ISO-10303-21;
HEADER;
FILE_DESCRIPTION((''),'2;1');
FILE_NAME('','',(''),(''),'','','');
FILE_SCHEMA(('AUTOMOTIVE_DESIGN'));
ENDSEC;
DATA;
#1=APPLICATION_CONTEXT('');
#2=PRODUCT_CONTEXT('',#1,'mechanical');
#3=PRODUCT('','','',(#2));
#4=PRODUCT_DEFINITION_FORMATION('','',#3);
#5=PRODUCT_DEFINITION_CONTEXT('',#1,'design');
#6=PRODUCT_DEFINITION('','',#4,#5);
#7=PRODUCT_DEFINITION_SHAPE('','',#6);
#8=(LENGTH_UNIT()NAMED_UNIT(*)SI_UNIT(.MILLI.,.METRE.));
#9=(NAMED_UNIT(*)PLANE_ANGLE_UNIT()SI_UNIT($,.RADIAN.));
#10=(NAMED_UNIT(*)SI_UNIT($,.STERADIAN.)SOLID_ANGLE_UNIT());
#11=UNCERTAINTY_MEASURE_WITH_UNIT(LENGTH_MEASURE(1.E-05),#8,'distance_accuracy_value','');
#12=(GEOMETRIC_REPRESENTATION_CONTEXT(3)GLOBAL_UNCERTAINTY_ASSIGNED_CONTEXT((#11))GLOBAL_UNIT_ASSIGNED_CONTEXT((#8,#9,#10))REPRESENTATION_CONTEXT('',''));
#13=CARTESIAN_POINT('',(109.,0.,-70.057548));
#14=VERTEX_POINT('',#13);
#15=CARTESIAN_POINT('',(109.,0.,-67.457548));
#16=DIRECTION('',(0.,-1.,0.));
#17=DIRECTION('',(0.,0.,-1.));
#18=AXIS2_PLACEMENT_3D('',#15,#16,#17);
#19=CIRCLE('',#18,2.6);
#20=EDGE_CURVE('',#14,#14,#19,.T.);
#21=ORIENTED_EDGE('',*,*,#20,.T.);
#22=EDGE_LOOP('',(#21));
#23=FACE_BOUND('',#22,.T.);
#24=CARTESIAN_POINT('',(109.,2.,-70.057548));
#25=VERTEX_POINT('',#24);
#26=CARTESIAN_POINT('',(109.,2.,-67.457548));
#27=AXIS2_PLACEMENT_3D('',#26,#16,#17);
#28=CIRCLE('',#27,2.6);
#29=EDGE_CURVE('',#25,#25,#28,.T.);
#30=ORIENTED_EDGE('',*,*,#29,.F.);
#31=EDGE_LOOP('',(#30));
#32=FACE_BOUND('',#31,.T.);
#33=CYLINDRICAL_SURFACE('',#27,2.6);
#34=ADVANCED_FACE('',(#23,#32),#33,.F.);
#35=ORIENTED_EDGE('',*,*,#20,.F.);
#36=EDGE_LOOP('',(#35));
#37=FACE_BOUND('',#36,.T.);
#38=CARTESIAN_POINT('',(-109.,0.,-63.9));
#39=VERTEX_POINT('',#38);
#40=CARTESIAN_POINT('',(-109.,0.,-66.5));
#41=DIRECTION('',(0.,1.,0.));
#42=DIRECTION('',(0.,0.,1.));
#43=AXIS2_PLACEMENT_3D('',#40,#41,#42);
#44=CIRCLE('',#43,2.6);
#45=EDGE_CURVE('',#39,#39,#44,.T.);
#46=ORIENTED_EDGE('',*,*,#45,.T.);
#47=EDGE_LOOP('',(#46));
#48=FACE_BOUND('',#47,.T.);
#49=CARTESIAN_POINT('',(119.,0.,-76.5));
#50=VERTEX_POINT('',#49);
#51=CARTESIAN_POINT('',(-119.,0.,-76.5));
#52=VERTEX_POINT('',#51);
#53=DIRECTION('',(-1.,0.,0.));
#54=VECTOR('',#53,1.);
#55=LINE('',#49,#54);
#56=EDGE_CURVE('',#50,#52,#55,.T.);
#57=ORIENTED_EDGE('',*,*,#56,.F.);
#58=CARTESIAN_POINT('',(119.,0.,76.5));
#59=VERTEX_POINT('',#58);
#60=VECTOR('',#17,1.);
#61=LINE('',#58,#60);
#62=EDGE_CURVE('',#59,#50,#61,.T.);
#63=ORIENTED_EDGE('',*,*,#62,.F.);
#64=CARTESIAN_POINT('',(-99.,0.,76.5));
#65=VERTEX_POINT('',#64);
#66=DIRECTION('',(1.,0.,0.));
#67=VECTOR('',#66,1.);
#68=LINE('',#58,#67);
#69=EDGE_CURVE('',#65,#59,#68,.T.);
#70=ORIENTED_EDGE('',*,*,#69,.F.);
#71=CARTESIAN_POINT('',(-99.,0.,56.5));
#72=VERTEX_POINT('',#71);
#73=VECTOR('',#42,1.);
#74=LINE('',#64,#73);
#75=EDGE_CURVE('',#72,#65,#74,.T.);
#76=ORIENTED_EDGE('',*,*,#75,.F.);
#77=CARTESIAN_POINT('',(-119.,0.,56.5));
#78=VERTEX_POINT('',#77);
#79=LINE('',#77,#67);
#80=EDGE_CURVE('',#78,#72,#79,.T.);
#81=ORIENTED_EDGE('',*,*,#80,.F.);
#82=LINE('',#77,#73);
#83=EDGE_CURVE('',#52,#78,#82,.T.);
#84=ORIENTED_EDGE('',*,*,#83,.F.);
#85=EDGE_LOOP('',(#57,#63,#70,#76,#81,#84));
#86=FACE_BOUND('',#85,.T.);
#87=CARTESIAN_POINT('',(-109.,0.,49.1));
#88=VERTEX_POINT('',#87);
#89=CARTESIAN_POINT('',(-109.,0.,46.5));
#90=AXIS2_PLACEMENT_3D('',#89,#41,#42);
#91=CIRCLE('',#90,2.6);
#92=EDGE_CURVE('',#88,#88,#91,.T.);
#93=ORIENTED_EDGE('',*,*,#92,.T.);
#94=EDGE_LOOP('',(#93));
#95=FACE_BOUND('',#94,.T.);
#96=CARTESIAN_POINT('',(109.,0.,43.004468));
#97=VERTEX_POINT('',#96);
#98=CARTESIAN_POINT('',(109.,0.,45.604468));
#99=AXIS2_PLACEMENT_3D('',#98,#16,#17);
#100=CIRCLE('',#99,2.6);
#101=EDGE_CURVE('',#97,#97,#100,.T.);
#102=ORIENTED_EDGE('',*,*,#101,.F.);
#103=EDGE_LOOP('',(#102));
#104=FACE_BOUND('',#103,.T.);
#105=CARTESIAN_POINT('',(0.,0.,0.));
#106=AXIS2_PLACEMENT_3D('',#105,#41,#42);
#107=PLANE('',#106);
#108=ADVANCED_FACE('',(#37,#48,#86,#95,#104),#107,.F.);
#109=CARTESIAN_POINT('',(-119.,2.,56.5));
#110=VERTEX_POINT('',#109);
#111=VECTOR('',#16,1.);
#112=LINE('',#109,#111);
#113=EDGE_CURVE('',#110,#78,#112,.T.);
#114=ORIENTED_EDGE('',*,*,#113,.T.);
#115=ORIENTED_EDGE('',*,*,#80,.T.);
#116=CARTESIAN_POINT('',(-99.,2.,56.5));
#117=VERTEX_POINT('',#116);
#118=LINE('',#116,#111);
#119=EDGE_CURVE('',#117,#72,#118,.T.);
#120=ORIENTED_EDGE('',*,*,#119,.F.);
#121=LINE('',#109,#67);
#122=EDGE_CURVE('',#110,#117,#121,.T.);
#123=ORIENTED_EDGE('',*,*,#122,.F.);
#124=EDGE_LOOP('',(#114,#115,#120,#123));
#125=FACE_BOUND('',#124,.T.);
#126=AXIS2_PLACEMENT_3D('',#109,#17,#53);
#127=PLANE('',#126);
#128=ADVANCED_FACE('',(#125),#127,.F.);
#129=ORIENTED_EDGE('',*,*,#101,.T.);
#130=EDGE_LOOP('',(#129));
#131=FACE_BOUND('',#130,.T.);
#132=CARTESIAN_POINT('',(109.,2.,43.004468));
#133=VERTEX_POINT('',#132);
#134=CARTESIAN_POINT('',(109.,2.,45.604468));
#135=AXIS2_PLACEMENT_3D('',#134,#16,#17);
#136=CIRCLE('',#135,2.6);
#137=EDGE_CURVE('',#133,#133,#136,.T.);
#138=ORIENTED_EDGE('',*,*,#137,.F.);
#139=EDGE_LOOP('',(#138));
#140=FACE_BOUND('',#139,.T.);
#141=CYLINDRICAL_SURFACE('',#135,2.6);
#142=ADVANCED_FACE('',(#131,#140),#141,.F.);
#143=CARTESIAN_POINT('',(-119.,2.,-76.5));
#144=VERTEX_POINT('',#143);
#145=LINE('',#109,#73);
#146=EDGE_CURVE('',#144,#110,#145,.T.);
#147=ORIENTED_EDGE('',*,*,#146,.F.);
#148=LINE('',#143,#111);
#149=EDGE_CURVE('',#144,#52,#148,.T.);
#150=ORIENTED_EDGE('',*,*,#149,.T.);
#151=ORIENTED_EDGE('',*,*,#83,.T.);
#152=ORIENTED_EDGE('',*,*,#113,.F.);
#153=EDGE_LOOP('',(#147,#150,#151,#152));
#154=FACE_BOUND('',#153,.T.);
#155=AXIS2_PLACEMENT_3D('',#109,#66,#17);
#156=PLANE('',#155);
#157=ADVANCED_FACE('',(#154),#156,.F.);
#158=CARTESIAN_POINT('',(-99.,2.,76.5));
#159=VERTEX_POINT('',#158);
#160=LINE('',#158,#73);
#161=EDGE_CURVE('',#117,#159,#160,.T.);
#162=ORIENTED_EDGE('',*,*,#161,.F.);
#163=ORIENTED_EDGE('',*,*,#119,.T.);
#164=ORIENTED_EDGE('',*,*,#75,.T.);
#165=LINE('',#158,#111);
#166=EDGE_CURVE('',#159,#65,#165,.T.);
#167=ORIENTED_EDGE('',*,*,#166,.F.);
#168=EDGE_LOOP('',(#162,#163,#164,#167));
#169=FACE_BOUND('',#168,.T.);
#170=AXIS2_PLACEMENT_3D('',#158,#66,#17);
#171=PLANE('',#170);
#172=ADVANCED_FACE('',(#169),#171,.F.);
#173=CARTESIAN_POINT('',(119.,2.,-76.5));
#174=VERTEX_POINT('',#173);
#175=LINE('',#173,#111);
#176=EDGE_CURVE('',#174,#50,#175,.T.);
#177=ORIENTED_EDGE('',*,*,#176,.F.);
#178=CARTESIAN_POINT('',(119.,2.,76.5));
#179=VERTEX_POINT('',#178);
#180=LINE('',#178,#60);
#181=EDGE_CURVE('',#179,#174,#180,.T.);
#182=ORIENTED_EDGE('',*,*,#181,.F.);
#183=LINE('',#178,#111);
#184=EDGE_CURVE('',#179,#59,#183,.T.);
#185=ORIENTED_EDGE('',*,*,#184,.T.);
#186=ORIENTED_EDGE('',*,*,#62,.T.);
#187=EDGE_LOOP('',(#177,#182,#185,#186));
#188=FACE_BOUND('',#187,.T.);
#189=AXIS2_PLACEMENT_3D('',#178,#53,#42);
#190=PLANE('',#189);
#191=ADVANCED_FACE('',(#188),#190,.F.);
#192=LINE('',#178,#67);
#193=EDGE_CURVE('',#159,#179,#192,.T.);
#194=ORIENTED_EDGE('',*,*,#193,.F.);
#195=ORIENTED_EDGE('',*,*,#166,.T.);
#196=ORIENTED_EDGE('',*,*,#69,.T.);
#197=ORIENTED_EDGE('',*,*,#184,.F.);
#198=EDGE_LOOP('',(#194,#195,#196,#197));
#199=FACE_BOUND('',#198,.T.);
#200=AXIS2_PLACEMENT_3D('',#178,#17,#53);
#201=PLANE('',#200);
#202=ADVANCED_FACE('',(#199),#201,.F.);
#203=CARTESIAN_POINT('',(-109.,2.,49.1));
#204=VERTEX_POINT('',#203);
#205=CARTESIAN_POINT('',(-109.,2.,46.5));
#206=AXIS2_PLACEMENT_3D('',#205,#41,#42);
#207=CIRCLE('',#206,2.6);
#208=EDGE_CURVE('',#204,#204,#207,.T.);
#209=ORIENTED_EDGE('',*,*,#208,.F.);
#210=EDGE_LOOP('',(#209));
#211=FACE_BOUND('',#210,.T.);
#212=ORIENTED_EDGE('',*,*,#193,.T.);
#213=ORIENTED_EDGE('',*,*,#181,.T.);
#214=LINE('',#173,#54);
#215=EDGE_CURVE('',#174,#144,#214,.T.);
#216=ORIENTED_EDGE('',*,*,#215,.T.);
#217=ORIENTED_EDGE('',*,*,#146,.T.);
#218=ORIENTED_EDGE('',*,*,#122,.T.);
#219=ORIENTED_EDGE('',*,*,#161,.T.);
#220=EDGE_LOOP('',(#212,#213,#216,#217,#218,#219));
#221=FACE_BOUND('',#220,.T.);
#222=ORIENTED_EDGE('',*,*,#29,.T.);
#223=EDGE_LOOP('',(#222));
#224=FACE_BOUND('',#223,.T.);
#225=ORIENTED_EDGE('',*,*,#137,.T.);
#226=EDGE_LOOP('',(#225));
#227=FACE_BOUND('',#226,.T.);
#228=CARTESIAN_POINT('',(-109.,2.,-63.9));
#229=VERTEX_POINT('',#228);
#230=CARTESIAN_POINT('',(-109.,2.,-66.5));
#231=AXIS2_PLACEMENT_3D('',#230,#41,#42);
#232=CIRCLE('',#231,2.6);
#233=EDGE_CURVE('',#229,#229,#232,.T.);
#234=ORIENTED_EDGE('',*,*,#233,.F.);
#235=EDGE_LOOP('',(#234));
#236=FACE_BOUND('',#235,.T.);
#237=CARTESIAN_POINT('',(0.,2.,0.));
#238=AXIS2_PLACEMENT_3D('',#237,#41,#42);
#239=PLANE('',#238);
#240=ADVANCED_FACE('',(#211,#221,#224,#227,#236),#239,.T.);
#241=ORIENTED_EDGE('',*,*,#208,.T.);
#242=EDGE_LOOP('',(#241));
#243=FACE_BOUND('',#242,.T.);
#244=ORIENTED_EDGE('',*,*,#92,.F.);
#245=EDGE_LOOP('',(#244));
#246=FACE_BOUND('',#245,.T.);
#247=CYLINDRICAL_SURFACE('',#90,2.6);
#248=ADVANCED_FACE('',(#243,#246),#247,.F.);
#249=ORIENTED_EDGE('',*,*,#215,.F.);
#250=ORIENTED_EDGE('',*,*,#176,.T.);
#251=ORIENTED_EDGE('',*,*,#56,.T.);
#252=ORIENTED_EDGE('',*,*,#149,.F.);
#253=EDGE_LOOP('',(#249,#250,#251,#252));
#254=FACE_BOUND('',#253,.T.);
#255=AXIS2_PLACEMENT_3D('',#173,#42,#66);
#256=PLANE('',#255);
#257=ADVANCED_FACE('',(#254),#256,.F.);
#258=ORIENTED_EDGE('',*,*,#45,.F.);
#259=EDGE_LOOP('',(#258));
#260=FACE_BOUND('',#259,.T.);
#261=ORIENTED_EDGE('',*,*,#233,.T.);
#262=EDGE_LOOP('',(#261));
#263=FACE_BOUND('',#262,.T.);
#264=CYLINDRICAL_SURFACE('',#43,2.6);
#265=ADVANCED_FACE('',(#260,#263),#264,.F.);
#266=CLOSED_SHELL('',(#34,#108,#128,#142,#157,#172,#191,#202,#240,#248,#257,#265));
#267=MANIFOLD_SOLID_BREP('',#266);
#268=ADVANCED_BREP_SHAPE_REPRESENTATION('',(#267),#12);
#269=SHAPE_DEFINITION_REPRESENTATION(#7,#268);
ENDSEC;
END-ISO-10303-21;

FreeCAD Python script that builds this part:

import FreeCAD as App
import Part
import Sketcher
Q = App.Units.Quantity


def add_polygon(sketch, points):
    """Adds a closed chain of lines whose ends are joined by coincident constraints."""
    first, n = sketch.GeometryCount, len(points)
    for a, b in zip(points, points[1:] + points[:1]):
        sketch.addGeometry(Part.LineSegment(App.Vector(*a, 0), App.Vector(*b, 0)), False)
    for i in range(n):
        sketch.addConstraint(Sketcher.Constraint("Coincident", first + i, 2, first + (i + 1) % n, 1))

doc = App.newDocument("Part")
body = doc.addObject("PartDesign::Body", "Body")

# Sketch on XZ plane
sketch1 = doc.addObject("Sketcher::SketchObject", "Sketch")
body.addObject(sketch1)
sketch1.AttachmentSupport = (doc.XZ_Plane, [""])
sketch1.MapMode = "FlatFace"
add_polygon(sketch1, [(-99, 76), (119, 76), (119, -76), (-119, -76), (-119, 56), (-99, 56)])  # lines 0-5
sketch1.addConstraint(Sketcher.Constraint("Horizontal", 0))
sketch1.addConstraint(Sketcher.Constraint("Vertical", 1))
sketch1.addConstraint(Sketcher.Constraint("Horizontal", 2))
sketch1.addConstraint(Sketcher.Constraint("Vertical", 3))
sketch1.addConstraint(Sketcher.Constraint("Horizontal", 4))
sketch1.addConstraint(Sketcher.Constraint("Vertical", 5))
sketch1.addConstraint(Sketcher.Constraint("Symmetric", 0, 2, 2, 2, -1, 1))
sketch1.addConstraint(Sketcher.Constraint("Equal", 4, 5))
sketch1.addConstraint(Sketcher.Constraint("DistanceX", 0, 1, 0, 2, Q("218 mm")))
sketch1.addConstraint(Sketcher.Constraint("DistanceX", 2, 2, 2, 1, Q("238 mm")))
sketch1.addConstraint(Sketcher.Constraint("DistanceY", 1, 2, 1, 1, Q("153 mm")))
pad1 = doc.addObject("PartDesign::Pad", "Pad")
body.addObject(pad1)
pad1.Profile = sketch1
pad1.Length = 2
pad1.Reversed = True

# Sketch on XZ plane
sketch2 = doc.addObject("Sketcher::SketchObject", "Sketch001")
body.addObject(sketch2)
sketch2.AttachmentSupport = (doc.XZ_Plane, [""])
sketch2.MapMode = "FlatFace"
sketch2.addGeometry(Part.Circle(App.Vector(109, 45.6, 0), App.Vector(0, 0, 1), 2.6), False)
sketch2.addGeometry(Part.Circle(App.Vector(109, -67.5, 0), App.Vector(0, 0, 1), 2.6), False)
sketch2.addConstraint(Sketcher.Constraint("Equal", 0, 1))
sketch2.addConstraint(Sketcher.Constraint("Vertical", 0, 3, 1, 3))
sketch2.addConstraint(Sketcher.Constraint("Diameter", 0, Q("5.2 mm")))
sketch2.addConstraint(Sketcher.Constraint("DistanceX", -1, 1, 0, 3, Q("109 mm")))
sketch2.addConstraint(Sketcher.Constraint("DistanceY", 1, 3, -1, 1, Q("67.457548 mm")))
sketch2.addConstraint(Sketcher.Constraint("DistanceY", -1, 1, 0, 3, Q("45.604468 mm")))
pocket1 = doc.addObject("PartDesign::Pocket", "Pocket")
body.addObject(pocket1)
pocket1.Profile = sketch2
pocket1.Length = 2

# Sketch on XZ plane
sketch3 = doc.addObject("Sketcher::SketchObject", "Sketch002")
body.addObject(sketch3)
sketch3.AttachmentSupport = (doc.XZ_Plane, [""])
sketch3.MapMode = "FlatFace"
sketch3.AttachmentOffset = App.Placement(App.Vector(0, 0, -2), App.Rotation())
sketch3.addGeometry(Part.Circle(App.Vector(-109, -66.5, 0), App.Vector(0, 0, 1), 2.6), False)
sketch3.addGeometry(Part.Circle(App.Vector(-109, 46.5, 0), App.Vector(0, 0, 1), 2.6), False)
sketch3.addConstraint(Sketcher.Constraint("Equal", 0, 1))
sketch3.addConstraint(Sketcher.Constraint("Vertical", 0, 3, 1, 3))
sketch3.addConstraint(Sketcher.Constraint("Diameter", 0, Q("5.2 mm")))
sketch3.addConstraint(Sketcher.Constraint("DistanceX", 0, 3, -1, 1, Q("109 mm")))
sketch3.addConstraint(Sketcher.Constraint("DistanceY", 0, 3, 1, 3, Q("113 mm")))
sketch3.addConstraint(Sketcher.Constraint("DistanceY", 0, 3, -1, 1, Q("66.5 mm")))
pocket2 = doc.addObject("PartDesign::Pocket", "Pocket001")
body.addObject(pocket2)
pocket2.Profile = sketch3
pocket2.Length = 2
pocket2.Reversed = True

doc.recompute()
